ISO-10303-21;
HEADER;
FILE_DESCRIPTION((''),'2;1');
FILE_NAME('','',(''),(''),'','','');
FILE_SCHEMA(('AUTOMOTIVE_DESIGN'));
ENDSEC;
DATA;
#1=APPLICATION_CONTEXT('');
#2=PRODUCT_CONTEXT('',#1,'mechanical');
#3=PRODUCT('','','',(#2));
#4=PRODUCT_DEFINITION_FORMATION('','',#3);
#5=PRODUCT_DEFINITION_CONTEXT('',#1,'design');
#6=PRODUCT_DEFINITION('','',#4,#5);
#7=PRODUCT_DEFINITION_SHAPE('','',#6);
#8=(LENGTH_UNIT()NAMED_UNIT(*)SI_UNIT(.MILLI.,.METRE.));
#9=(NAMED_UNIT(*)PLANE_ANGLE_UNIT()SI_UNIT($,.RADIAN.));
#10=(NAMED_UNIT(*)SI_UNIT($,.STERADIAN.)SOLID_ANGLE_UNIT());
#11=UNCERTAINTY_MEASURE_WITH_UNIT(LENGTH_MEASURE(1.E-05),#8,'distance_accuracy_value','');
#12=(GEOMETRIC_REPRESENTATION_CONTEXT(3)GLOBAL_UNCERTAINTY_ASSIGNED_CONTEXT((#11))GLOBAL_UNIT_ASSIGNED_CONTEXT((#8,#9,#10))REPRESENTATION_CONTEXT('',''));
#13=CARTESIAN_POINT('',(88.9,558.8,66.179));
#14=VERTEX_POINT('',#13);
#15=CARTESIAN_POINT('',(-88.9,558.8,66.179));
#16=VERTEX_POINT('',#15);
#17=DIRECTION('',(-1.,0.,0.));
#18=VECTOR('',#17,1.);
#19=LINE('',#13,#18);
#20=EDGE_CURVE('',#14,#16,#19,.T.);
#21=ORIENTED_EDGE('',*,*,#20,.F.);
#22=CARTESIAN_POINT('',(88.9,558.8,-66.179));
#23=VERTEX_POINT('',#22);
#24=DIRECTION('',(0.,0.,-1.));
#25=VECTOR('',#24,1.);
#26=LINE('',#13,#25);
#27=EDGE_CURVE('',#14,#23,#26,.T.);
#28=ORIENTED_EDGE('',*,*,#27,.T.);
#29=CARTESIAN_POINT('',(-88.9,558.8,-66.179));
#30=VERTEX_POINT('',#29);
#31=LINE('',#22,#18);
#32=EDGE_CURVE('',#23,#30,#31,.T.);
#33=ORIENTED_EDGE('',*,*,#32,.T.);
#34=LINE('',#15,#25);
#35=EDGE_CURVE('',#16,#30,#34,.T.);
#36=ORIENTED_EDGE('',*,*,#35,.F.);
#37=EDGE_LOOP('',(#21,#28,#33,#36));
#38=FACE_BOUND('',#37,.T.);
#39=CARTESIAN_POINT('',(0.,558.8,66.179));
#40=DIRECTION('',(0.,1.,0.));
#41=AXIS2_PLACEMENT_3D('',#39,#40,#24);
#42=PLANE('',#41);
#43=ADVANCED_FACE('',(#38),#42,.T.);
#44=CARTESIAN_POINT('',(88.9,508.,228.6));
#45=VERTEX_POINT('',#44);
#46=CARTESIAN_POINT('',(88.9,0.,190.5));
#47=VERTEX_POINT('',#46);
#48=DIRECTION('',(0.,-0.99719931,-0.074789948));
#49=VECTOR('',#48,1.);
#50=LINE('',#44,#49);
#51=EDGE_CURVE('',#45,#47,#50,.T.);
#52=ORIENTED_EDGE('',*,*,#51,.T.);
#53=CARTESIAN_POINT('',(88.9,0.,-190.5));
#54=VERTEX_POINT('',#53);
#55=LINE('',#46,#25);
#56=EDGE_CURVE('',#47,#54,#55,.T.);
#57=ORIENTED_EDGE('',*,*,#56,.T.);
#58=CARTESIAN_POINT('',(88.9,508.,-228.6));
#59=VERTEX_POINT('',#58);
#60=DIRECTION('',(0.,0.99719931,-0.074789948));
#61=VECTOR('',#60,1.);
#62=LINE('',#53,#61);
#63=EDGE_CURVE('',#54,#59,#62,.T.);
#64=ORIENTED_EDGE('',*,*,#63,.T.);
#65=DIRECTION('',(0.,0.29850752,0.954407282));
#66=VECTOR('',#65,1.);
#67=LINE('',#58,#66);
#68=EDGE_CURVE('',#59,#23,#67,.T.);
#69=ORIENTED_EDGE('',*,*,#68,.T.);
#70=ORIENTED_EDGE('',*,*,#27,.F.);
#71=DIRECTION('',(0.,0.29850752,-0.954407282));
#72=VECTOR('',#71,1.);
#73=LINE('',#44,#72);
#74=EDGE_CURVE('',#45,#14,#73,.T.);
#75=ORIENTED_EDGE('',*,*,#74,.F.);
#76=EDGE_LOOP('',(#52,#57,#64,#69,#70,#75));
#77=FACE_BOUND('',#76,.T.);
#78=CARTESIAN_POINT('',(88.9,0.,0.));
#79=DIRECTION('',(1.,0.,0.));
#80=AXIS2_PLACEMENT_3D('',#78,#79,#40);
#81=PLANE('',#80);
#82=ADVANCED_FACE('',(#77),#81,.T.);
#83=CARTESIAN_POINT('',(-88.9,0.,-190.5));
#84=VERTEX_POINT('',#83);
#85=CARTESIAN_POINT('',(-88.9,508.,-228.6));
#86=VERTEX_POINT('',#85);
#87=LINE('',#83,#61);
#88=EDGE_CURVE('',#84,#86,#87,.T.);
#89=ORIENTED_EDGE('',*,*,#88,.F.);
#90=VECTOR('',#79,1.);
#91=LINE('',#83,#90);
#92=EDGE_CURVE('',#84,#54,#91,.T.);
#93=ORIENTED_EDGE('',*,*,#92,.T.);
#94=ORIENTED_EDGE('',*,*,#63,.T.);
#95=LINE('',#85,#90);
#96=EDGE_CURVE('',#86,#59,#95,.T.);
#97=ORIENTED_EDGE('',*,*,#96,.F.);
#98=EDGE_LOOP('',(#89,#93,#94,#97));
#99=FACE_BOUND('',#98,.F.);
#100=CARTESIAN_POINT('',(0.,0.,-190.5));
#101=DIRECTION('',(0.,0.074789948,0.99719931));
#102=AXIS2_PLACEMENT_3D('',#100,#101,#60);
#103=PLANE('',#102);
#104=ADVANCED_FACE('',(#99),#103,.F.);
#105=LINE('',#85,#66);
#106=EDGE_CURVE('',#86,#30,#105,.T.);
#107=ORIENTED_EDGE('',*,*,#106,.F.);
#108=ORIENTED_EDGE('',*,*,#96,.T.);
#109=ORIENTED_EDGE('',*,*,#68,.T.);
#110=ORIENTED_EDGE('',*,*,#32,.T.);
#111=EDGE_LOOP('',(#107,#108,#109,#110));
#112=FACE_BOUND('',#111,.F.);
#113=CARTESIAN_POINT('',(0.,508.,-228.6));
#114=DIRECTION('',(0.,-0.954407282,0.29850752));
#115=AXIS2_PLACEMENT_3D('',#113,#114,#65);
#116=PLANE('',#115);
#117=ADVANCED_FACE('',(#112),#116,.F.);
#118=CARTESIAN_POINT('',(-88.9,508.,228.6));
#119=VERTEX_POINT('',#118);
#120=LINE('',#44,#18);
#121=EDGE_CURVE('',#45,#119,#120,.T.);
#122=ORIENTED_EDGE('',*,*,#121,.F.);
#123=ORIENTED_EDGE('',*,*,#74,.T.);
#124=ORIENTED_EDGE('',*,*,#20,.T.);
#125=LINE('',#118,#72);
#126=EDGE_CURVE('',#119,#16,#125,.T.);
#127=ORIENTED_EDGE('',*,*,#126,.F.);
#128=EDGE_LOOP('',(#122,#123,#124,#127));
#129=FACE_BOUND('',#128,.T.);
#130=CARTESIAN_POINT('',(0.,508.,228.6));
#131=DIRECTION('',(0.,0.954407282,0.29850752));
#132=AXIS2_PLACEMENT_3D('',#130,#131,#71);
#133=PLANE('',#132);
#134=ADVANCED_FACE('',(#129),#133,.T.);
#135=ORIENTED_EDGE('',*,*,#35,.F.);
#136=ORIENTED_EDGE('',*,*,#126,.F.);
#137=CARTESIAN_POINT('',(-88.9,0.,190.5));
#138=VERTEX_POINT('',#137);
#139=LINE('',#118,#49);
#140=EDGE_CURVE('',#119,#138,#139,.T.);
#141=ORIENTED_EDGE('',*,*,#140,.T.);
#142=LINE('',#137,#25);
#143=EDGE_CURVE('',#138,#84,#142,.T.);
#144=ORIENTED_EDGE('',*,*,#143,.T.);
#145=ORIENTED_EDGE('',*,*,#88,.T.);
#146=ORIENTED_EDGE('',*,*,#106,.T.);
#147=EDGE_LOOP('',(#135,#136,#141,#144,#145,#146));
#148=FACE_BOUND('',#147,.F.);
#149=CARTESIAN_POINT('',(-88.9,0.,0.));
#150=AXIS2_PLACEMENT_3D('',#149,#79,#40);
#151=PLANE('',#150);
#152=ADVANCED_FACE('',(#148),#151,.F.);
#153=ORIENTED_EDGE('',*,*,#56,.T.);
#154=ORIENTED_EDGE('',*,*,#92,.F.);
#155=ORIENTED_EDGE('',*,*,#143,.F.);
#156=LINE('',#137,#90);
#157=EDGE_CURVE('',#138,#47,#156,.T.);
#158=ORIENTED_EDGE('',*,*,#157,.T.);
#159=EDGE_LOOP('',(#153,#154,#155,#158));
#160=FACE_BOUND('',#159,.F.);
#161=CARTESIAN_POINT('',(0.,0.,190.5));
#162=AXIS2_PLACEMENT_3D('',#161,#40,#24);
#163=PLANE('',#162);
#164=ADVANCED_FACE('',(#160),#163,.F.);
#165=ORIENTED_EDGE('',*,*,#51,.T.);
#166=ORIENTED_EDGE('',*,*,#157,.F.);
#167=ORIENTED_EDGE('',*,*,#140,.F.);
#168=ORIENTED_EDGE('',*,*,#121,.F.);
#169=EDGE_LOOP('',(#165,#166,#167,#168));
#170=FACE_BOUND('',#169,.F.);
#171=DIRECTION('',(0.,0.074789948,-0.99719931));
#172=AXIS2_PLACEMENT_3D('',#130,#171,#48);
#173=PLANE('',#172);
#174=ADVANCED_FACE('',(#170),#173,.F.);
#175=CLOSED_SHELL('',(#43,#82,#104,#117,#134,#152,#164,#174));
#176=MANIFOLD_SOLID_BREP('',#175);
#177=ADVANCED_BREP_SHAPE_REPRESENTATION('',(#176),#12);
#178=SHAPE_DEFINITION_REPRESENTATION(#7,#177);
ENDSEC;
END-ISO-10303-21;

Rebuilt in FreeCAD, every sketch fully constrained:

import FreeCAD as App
import Part
import Sketcher
Q = App.Units.Quantity


def add_polygon(sketch, points):
    """Adds a closed chain of lines whose ends are joined by coincident constraints."""
    first, n = sketch.GeometryCount, len(points)
    for a, b in zip(points, points[1:] + points[:1]):
        sketch.addGeometry(Part.LineSegment(App.Vector(*a, 0), App.Vector(*b, 0)), False)
    for i in range(n):
        sketch.addConstraint(Sketcher.Constraint("Coincident", first + i, 2, first + (i + 1) % n, 1))

doc = App.newDocument("Part")
body = doc.addObject("PartDesign::Body", "Body")

# Sketch on YZ plane
sketch1 = doc.addObject("Sketcher::SketchObject", "Sketch")
body.addObject(sketch1)
sketch1.AttachmentSupport = (doc.YZ_Plane, [""])
sketch1.MapMode = "FlatFace"
add_polygon(sketch1, [(508, 229), (0, 190), (0, -190), (508, -229), (559, -66), (559, 66)])  # lines 0-5
sketch1.addConstraint(Sketcher.Constraint("Vertical", 1))
sketch1.addConstraint(Sketcher.Constraint("Vertical", 4))
sketch1.addConstraint(Sketcher.Constraint("Symmetric", 0, 2, 1, 2, -1, 1))
sketch1.addConstraint(Sketcher.Constraint("Symmetric", 2, 2, 5, 2, -1))
sketch1.addConstraint(Sketcher.Constraint("Equal", 3, 5))
sketch1.addConstraint(Sketcher.Constraint("DistanceY", 1, 2, 1, 1, Q("15 in")))
sketch1.addConstraint(Sketcher.Constraint("DistanceX", -1, 1, 2, 2, Q("20 in")))
sketch1.addConstraint(Sketcher.Constraint("DistanceX", -1, 1, 3, 2, Q("22 in")))
sketch1.addConstraint(Sketcher.Constraint("DistanceY", 2, 2, 5, 2, Q("18 in")))
sketch1.addConstraint(Sketcher.Constraint("Distance", 3, Q("6.7 in")))
pad1 = doc.addObject("PartDesign::Pad", "Pad")
body.addObject(pad1)
pad1.Profile = sketch1
pad1.Length = Q("7 in")
pad1.Midplane = True

doc.recompute()
